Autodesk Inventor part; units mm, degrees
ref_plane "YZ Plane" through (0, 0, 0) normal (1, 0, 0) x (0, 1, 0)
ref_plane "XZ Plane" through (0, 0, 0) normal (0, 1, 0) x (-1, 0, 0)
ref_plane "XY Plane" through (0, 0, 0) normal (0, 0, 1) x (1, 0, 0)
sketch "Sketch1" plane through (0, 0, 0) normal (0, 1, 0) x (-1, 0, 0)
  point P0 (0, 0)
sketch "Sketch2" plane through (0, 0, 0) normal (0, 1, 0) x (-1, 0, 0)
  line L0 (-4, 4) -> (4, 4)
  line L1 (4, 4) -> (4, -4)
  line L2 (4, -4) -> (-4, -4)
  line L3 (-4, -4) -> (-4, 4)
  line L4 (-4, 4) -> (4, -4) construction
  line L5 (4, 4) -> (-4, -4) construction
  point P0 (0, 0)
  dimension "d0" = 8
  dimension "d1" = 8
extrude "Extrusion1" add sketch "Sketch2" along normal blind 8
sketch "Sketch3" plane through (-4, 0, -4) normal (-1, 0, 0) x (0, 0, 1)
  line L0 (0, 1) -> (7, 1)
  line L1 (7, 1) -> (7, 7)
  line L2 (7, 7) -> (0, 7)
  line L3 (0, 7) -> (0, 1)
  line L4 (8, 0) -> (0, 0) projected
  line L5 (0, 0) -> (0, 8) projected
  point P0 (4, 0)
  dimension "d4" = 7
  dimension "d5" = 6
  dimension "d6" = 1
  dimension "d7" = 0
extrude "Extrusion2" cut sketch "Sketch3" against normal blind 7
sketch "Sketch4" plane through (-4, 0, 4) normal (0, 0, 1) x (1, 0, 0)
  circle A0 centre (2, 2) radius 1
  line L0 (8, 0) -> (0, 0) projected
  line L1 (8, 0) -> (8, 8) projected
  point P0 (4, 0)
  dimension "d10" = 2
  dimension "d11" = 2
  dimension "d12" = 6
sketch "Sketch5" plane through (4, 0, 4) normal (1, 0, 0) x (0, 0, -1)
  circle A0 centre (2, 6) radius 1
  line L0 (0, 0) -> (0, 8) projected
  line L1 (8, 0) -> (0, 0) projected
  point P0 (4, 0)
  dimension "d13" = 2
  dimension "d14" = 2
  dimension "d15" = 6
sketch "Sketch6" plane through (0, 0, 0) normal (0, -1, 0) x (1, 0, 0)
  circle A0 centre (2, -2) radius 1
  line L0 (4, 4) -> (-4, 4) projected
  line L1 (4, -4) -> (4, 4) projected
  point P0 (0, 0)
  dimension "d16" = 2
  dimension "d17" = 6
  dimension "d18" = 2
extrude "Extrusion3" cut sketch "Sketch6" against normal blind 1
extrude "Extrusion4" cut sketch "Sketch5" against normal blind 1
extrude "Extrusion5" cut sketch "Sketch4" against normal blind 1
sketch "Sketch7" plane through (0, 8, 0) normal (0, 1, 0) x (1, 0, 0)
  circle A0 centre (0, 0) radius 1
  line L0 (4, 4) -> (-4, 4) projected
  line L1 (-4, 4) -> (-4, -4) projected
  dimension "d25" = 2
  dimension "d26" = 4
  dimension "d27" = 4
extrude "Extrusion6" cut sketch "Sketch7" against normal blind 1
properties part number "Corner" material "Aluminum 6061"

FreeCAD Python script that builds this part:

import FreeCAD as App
import Part
import Sketcher

doc = App.newDocument("Part")
body = doc.addObject("PartDesign::Body", "Body")

# Sketch on XZ plane
sketch1 = doc.addObject("Sketcher::SketchObject", "Sketch")
body.addObject(sketch1)
sketch1.AttachmentSupport = (doc.XZ_Plane, [""])
sketch1.MapMode = "FlatFace"
sketch1.addGeometry(Part.LineSegment(App.Vector(-4, 4, 0), App.Vector(4, 4, 0)), False)
sketch1.addGeometry(Part.LineSegment(App.Vector(4, 4, 0), App.Vector(4, -4, 0)), False)
sketch1.addGeometry(Part.LineSegment(App.Vector(4, -4, 0), App.Vector(-4, -4, 0)), False)
sketch1.addGeometry(Part.LineSegment(App.Vector(-4, -4, 0), App.Vector(-4, 4, 0)), False)
sketch1.addConstraint(Sketcher.Constraint("Coincident", 0, 2, 1, 1))
sketch1.addConstraint(Sketcher.Constraint("Coincident", 1, 2, 2, 1))
sketch1.addConstraint(Sketcher.Constraint("Coincident", 2, 2, 3, 1))
sketch1.addConstraint(Sketcher.Constraint("Coincident", 3, 2, 0, 1))
sketch1.addConstraint(Sketcher.Constraint("Horizontal", 0))
sketch1.addConstraint(Sketcher.Constraint("Vertical", 1))
sketch1.addConstraint(Sketcher.Constraint("Horizontal", 2))
sketch1.addConstraint(Sketcher.Constraint("Vertical", 3))
sketch1.addConstraint(Sketcher.Constraint("Symmetric", 0, 2, 2, 2, -1, 1))
sketch1.addConstraint(Sketcher.Constraint("Equal", 2, 1))
sketch1.addConstraint(Sketcher.Constraint("DistanceX", 0, 1, 0, 2, 8.0))
pad1 = doc.addObject("PartDesign::Pad", "Pad")
body.addObject(pad1)
pad1.Profile = sketch1
pad1.Length = 8
pad1.Reversed = True

# Sketch on YZ plane
sketch2 = doc.addObject("Sketcher::SketchObject", "Sketch001")
body.addObject(sketch2)
sketch2.AttachmentSupport = (doc.YZ_Plane, [""])
sketch2.MapMode = "FlatFace"
sketch2.AttachmentOffset = App.Placement(App.Vector(0, 0, -4), App.Rotation())
sketch2.addGeometry(Part.LineSegment(App.Vector(7, -4, 0), App.Vector(1, -4, 0)), False)
sketch2.addGeometry(Part.LineSegment(App.Vector(1, -4, 0), App.Vector(1, 3, 0)), False)
sketch2.addGeometry(Part.LineSegment(App.Vector(1, 3, 0), App.Vector(7, 3, 0)), False)
sketch2.addGeometry(Part.LineSegment(App.Vector(7, 3, 0), App.Vector(7, -4, 0)), False)
sketch2.addConstraint(Sketcher.Constraint("Coincident", 0, 2, 1, 1))
sketch2.addConstraint(Sketcher.Constraint("Coincident", 1, 2, 2, 1))
sketch2.addConstraint(Sketcher.Constraint("Coincident", 2, 2, 3, 1))
sketch2.addConstraint(Sketcher.Constraint("Coincident", 3, 2, 0, 1))
sketch2.addConstraint(Sketcher.Constraint("Horizontal", 0))
sketch2.addConstraint(Sketcher.Constraint("Vertical", 1))
sketch2.addConstraint(Sketcher.Constraint("Horizontal", 2))
sketch2.addConstraint(Sketcher.Constraint("Vertical", 3))
sketch2.addConstraint(Sketcher.Constraint("DistanceX", 0, 2, 0, 1, 6.0))
sketch2.addConstraint(Sketcher.Constraint("DistanceY", 1, 1, 1, 2, 7.0))
sketch2.addConstraint(Sketcher.Constraint("DistanceX", -1, 1, 0, 2, 1.0))
sketch2.addConstraint(Sketcher.Constraint("DistanceY", 0, 2, -1, 1, 4.0))
pocket1 = doc.addObject("PartDesign::Pocket", "Pocket")
body.addObject(pocket1)
pocket1.Profile = sketch2
pocket1.Length = 7
pocket1.Reversed = True

# Sketch on XZ plane
sketch3 = doc.addObject("Sketcher::SketchObject", "Sketch002")
body.addObject(sketch3)
sketch3.AttachmentSupport = (doc.XZ_Plane, [""])
sketch3.MapMode = "FlatFace"
sketch3.addGeometry(Part.Circle(App.Vector(2, -2, 0), App.Vector(0, 0, 1), 1), False)
sketch3.addConstraint(Sketcher.Constraint("Diameter", 0, 2.0))
sketch3.addConstraint(Sketcher.Constraint("DistanceX", -1, 1, 0, 3, 2.0))
sketch3.addConstraint(Sketcher.Constraint("DistanceY", 0, 3, -1, 1, 2.0))
pocket2 = doc.addObject("PartDesign::Pocket", "Pocket001")
body.addObject(pocket2)
pocket2.Profile = sketch3
pocket2.Length = 1

# Sketch on YZ plane
sketch4 = doc.addObject("Sketcher::SketchObject", "Sketch003")
body.addObject(sketch4)
sketch4.AttachmentSupport = (doc.YZ_Plane, [""])
sketch4.MapMode = "FlatFace"
sketch4.AttachmentOffset = App.Placement(App.Vector(0, 0, 4), App.Rotation())
sketch4.addGeometry(Part.Circle(App.Vector(6, 2, 0), App.Vector(0, 0, 1), 1), False)
sketch4.addConstraint(Sketcher.Constraint("Diameter", 0, 2.0))
sketch4.addConstraint(Sketcher.Constraint("DistanceX", -1, 1, 0, 3, 6.0))
sketch4.addConstraint(Sketcher.Constraint("DistanceY", -1, 1, 0, 3, 2.0))
pocket3 = doc.addObject("PartDesign::Pocket", "Pocket002")
body.addObject(pocket3)
pocket3.Profile = sketch4
pocket3.Length = 1

# Sketch on XY plane
sketch5 = doc.addObject("Sketcher::SketchObject", "Sketch004")
body.addObject(sketch5)
sketch5.AttachmentSupport = (doc.XY_Plane, [""])
sketch5.MapMode = "FlatFace"
sketch5.AttachmentOffset = App.Placement(App.Vector(0, 0, 4), App.Rotation())
sketch5.addGeometry(Part.Circle(App.Vector(-2, 2, 0), App.Vector(0, 0, 1), 1), False)
sketch5.addConstraint(Sketcher.Constraint("Diameter", 0, 2.0))
sketch5.addConstraint(Sketcher.Constraint("DistanceX", 0, 3, -1, 1, 2.0))
sketch5.addConstraint(Sketcher.Constraint("DistanceY", -1, 1, 0, 3, 2.0))
pocket4 = doc.addObject("PartDesign::Pocket", "Pocket003")
body.addObject(pocket4)
pocket4.Profile = sketch5
pocket4.Length = 1

# Sketch on XZ plane
sketch6 = doc.addObject("Sketcher::SketchObject", "Sketch005")
body.addObject(sketch6)
sketch6.AttachmentSupport = (doc.XZ_Plane, [""])
sketch6.MapMode = "FlatFace"
sketch6.AttachmentOffset = App.Placement(App.Vector(0, 0, -8), App.Rotation())
sketch6.addGeometry(Part.Circle(App.Vector(0, 0, 0), App.Vector(0, 0, 1), 1), False)
sketch6.addConstraint(Sketcher.Constraint("Coincident", 0, 3, -1, 1))
sketch6.addConstraint(Sketcher.Constraint("Diameter", 0, 2.0))
pocket5 = doc.addObject("PartDesign::Pocket", "Pocket004")
body.addObject(pocket5)
pocket5.Profile = sketch6
pocket5.Length = 1
pocket5.Reversed = True

doc.recompute()
